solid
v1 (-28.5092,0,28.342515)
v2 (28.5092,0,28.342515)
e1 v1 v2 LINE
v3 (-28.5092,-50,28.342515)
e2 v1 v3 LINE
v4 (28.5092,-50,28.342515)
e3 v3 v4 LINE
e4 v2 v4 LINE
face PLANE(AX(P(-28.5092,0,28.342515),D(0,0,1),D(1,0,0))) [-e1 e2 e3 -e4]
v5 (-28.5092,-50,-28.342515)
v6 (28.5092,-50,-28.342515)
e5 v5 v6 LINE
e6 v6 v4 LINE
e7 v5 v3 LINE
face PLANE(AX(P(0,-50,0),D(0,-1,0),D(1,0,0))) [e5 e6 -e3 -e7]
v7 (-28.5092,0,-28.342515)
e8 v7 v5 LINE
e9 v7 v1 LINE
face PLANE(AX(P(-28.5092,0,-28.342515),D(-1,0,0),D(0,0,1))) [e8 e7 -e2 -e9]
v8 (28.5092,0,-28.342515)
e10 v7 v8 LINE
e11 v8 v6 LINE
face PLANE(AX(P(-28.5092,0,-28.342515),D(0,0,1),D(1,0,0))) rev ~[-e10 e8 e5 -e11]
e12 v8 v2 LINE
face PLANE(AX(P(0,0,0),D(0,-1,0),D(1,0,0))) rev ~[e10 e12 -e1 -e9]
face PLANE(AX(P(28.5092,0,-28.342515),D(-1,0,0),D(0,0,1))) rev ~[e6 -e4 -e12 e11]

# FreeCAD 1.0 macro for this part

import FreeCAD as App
import Part
import Sketcher

V = App.Vector
Q = App.Units.Quantity

doc = App.newDocument("Part")
body = doc.addObject("PartDesign::Body", "Body")

# Sketch on XZ plane
sketch1 = doc.addObject("Sketcher::SketchObject", "Sketch")
body.addObject(sketch1)
sketch1.AttachmentSupport = (doc.XZ_Plane, [""])
sketch1.MapMode = "FlatFace"
sketch1.addGeometry(Part.LineSegment(V(-28.5092, 28.342515, 0), V(-28.5092, -28.342515, 0)), False)
sketch1.addGeometry(Part.LineSegment(V(-28.5092, -28.342515, 0), V(28.5092, -28.342515, 0)), False)
sketch1.addGeometry(Part.LineSegment(V(28.5092, -28.342515, 0), V(28.5092, 28.342515, 0)), False)
sketch1.addGeometry(Part.LineSegment(V(28.5092, 28.342515, 0), V(-28.5092, 28.342515, 0)), False)
sketch1.addConstraint(Sketcher.Constraint("Coincident", 0, 2, 1, 1))
sketch1.addConstraint(Sketcher.Constraint("Coincident", 1, 2, 2, 1))
sketch1.addConstraint(Sketcher.Constraint("Coincident", 2, 2, 3, 1))
sketch1.addConstraint(Sketcher.Constraint("Coincident", 3, 2, 0, 1))
sketch1.addConstraint(Sketcher.Constraint("Vertical", 0))
sketch1.addConstraint(Sketcher.Constraint("Horizontal", 1))
sketch1.addConstraint(Sketcher.Constraint("Vertical", 2))
sketch1.addConstraint(Sketcher.Constraint("Horizontal", 3))
sketch1.addConstraint(Sketcher.Constraint("Symmetric", 0, 2, 2, 2, -1, 1))
sketch1.addConstraint(Sketcher.Constraint("DistanceX", 1, 1, 1, 2, Q("57.0184 mm")))
sketch1.addConstraint(Sketcher.Constraint("DistanceY", 0, 2, 0, 1, Q("56.68503 mm")))
pad1 = doc.addObject("PartDesign::Pad", "Pad")
body.addObject(pad1)
pad1.Profile = sketch1
pad1.Length = 50

doc.recompute()
